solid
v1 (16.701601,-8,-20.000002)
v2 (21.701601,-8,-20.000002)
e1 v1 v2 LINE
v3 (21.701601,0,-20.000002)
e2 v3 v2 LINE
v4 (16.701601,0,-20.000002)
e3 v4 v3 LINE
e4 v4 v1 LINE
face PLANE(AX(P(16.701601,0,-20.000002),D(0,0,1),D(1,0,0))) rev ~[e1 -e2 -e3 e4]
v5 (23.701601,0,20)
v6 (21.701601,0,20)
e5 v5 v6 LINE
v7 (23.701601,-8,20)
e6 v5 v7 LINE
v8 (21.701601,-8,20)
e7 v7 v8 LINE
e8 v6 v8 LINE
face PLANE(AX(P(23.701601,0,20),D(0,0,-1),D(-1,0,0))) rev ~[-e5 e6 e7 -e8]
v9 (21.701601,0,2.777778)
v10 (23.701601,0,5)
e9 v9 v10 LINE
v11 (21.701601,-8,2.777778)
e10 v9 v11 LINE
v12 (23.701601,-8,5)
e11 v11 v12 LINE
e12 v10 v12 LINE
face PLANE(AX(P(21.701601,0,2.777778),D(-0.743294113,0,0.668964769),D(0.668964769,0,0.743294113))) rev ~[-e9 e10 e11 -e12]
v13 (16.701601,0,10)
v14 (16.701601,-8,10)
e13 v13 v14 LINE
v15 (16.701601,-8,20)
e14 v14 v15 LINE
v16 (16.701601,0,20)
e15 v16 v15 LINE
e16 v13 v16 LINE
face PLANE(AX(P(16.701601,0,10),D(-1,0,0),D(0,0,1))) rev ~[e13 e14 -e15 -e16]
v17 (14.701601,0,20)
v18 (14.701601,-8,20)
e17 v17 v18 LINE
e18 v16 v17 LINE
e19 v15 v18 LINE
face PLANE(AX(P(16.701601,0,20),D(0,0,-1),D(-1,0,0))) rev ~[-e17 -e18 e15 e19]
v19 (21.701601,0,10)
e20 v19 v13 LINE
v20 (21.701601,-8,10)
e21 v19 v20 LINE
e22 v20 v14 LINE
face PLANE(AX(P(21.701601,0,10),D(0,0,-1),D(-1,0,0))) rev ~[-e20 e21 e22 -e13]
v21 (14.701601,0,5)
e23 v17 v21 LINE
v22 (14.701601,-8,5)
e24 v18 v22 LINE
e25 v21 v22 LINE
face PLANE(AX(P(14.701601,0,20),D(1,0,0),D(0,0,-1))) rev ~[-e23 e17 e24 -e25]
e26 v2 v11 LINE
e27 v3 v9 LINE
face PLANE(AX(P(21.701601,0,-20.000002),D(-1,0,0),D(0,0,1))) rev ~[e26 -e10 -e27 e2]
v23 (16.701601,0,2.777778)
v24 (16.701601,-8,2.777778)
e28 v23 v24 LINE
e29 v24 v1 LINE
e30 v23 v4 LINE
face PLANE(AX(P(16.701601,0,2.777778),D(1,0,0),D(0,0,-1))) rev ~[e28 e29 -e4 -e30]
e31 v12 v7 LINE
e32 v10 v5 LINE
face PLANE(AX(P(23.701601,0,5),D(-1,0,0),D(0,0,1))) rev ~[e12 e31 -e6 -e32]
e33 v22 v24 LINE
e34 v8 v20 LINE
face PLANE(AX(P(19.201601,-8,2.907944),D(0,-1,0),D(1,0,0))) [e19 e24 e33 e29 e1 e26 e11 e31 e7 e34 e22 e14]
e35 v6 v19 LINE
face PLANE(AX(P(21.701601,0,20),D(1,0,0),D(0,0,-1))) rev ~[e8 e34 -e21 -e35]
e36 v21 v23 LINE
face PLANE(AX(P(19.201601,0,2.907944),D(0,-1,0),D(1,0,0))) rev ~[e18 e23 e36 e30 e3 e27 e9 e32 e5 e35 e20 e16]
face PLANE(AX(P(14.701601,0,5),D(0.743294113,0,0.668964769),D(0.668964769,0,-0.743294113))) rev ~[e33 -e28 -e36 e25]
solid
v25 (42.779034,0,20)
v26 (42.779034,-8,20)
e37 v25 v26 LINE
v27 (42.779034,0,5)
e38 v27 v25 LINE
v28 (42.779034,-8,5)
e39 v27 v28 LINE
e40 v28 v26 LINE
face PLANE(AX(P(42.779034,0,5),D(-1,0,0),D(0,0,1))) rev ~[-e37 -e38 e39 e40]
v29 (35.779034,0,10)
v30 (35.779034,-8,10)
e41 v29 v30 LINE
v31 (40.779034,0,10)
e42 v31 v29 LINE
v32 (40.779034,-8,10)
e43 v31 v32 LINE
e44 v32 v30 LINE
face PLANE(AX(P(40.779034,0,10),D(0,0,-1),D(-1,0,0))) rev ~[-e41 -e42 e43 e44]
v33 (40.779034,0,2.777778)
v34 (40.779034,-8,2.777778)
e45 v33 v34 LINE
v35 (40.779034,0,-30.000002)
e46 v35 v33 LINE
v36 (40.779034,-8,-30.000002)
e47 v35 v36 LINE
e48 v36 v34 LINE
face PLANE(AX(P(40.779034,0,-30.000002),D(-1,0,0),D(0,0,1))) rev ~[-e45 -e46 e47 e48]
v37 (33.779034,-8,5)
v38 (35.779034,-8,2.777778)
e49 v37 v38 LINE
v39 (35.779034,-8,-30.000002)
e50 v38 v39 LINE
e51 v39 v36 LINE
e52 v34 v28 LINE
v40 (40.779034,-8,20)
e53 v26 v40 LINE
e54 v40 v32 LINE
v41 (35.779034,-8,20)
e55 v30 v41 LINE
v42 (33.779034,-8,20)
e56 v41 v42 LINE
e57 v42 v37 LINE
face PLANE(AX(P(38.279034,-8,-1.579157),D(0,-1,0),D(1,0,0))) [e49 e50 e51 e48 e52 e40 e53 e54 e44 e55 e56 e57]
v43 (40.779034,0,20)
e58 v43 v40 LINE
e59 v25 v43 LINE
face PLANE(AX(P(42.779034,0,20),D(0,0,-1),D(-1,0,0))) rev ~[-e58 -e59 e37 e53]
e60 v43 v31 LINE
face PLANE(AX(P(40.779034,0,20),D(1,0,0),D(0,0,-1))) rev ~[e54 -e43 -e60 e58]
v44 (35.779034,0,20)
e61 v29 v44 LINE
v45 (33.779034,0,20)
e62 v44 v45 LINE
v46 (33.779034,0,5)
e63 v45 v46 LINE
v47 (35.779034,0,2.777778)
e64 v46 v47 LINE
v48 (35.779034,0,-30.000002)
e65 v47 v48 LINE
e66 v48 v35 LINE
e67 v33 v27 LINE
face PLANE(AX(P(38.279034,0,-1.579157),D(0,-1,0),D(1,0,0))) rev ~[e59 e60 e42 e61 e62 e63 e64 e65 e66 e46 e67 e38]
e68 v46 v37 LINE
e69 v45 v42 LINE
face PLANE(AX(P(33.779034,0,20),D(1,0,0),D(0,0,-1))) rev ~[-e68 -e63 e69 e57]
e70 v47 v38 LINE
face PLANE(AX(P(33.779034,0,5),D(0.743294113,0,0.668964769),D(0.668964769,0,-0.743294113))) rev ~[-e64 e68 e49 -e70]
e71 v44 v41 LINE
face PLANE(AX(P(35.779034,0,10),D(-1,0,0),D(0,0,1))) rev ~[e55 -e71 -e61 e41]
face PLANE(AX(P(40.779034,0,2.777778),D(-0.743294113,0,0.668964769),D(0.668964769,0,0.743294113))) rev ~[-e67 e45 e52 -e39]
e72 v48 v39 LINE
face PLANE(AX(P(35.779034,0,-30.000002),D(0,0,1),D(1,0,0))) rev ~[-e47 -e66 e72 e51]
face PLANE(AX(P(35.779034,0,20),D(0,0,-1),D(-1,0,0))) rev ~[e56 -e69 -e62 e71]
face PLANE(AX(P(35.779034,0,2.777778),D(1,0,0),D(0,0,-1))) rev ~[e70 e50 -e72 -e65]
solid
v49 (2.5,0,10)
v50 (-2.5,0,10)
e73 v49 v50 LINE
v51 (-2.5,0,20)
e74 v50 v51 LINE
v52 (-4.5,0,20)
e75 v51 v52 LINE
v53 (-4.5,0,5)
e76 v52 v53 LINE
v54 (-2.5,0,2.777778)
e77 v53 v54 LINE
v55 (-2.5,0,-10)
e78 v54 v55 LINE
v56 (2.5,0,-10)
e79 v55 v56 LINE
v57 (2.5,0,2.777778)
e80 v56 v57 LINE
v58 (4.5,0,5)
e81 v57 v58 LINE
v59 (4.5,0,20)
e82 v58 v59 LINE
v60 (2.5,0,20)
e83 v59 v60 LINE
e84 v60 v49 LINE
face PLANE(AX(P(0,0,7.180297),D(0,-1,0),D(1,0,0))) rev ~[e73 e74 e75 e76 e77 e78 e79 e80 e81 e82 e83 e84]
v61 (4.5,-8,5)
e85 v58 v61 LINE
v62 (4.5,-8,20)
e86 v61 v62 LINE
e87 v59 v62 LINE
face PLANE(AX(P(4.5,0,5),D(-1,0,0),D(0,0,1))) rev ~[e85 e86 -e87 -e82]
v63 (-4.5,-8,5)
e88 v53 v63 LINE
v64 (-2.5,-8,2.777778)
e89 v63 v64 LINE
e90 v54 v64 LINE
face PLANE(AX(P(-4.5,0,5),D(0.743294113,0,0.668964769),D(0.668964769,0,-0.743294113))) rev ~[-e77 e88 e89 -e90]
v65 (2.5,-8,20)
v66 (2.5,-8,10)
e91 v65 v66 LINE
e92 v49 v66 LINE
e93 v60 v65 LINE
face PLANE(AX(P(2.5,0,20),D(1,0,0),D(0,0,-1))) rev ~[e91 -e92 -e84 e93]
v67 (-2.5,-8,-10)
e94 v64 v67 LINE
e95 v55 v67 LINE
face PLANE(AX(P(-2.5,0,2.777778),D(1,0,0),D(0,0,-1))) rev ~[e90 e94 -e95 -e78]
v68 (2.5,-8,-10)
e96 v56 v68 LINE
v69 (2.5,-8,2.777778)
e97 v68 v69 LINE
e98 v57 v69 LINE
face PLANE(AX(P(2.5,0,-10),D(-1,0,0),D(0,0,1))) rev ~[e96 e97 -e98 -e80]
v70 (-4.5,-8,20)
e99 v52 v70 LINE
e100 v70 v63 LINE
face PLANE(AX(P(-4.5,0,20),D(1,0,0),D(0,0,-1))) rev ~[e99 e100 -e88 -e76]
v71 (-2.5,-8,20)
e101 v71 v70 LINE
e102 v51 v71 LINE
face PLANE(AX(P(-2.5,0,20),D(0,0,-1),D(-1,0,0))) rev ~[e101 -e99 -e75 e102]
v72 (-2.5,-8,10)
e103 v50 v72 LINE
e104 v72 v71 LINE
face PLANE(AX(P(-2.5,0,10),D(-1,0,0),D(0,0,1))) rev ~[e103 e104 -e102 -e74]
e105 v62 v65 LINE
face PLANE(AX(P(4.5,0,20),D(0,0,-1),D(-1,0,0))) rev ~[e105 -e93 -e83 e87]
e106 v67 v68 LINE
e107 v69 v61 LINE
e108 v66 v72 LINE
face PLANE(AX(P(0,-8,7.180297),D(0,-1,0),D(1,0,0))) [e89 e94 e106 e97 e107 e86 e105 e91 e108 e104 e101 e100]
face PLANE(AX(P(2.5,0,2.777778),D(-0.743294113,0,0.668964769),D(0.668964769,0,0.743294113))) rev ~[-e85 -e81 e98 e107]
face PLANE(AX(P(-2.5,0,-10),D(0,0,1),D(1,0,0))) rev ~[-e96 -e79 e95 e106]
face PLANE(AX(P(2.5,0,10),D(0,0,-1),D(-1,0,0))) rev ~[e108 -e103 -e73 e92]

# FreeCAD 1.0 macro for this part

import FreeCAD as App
import Part
import Sketcher
Q = App.Units.Quantity


def add_polygon(sketch, points):
    """Adds a closed chain of lines whose ends are joined by coincident constraints."""
    first, n = sketch.GeometryCount, len(points)
    for a, b in zip(points, points[1:] + points[:1]):
        sketch.addGeometry(Part.LineSegment(App.Vector(*a, 0), App.Vector(*b, 0)), False)
    for i in range(n):
        sketch.addConstraint(Sketcher.Constraint("Coincident", first + i, 2, first + (i + 1) % n, 1))

doc = App.newDocument("Part")
body = doc.addObject("PartDesign::Body", "Body")
body.AllowCompound = True

sketch1 = doc.addObject("Sketcher::SketchObject", "Sketch")
body.addObject(sketch1)
sketch1.AttachmentSupport = (doc.XZ_Plane, [""])
sketch1.MapMode = "FlatFace"
add_polygon(sketch1, [(-2.5, 2.8), (-2.5, -10), (2.5, -10), (2.5, 2.8), (4.5, 5), (4.5, 20), (2.5, 20), (2.5, 10), (-2.5, 10), (-2.5, 20), (-4.5, 20), (-4.5, 5)])
add_polygon(sketch1, [(21.7, 10), (16.7, 10), (16.7, 20), (14.7, 20), (14.7, 5), (16.7, 2.8), (16.7, -20), (21.7, -20), (21.7, 2.8), (23.7, 5), (23.7, 20), (21.7, 20)])
add_polygon(sketch1, [(40.8, 10), (35.8, 10), (35.8, 20), (33.8, 20), (33.8, 5), (35.8, 2.8), (35.8, -30), (40.8, -30), (40.8, 2.8), (42.8, 5), (42.8, 20), (40.8, 20)])
sketch1.addConstraint([
    Sketcher.Constraint("Vertical", 0),
    Sketcher.Constraint("Horizontal", 1),
    Sketcher.Constraint("Vertical", 2),
    Sketcher.Constraint("Vertical", 4),
    Sketcher.Constraint("Horizontal", 5),
    Sketcher.Constraint("Vertical", 6),
    Sketcher.Constraint("Horizontal", 7),
    Sketcher.Constraint("Vertical", 8),
    Sketcher.Constraint("Horizontal", 9),
    Sketcher.Constraint("Vertical", 10),
    Sketcher.Constraint("Horizontal", 12),
    Sketcher.Constraint("Vertical", 13),
    Sketcher.Constraint("Horizontal", 14),
    Sketcher.Constraint("Vertical", 15),
    Sketcher.Constraint("Vertical", 17),
    Sketcher.Constraint("Horizontal", 18),
    Sketcher.Constraint("Vertical", 19),
    Sketcher.Constraint("Vertical", 21),
    Sketcher.Constraint("Horizontal", 22),
    Sketcher.Constraint("Vertical", 23),
    Sketcher.Constraint("Horizontal", 24),
    Sketcher.Constraint("Vertical", 25),
    Sketcher.Constraint("Horizontal", 26),
    Sketcher.Constraint("Vertical", 27),
    Sketcher.Constraint("Vertical", 29),
    Sketcher.Constraint("Horizontal", 30),
    Sketcher.Constraint("Vertical", 31),
    Sketcher.Constraint("Vertical", 33),
    Sketcher.Constraint("Horizontal", 34),
    Sketcher.Constraint("Vertical", 35),
    Sketcher.Constraint("Symmetric", 0, 2, 6, 2, -1, 1),
    Sketcher.Constraint("Symmetric", 5, 2, 8, 2, -2),
    Sketcher.Constraint("Symmetric", 3, 2, 10, 2, -2),
    Sketcher.Constraint("Symmetric", 2, 2, 11, 2, -2),
    Sketcher.Constraint("Symmetric", 13, 2, 17, 2, -1),
    Sketcher.Constraint("Symmetric", 18, 2, 22, 2, -1),
    Sketcher.Constraint("Parallel", 11, 16),
    Sketcher.Constraint("Parallel", 3, 20),
    Sketcher.Constraint("Parallel", 16, 28),
    Sketcher.Constraint("Parallel", 20, 32),
    Sketcher.Constraint("Horizontal", 7, 2, 12, 2),
    Sketcher.Constraint("Horizontal", 9, 2, 13, 2),
    Sketcher.Constraint("Horizontal", 10, 2, 15, 2),
    Sketcher.Constraint("Horizontal", 11, 2, 16, 2),
    Sketcher.Constraint("Horizontal", 16, 2, 19, 2),
    Sketcher.Constraint("Horizontal", 15, 2, 20, 2),
    Sketcher.Constraint("Horizontal", 23, 2, 24, 2),
    Sketcher.Constraint("Horizontal", 22, 2, 25, 2),
    Sketcher.Constraint("Horizontal", 20, 2, 27, 2),
    Sketcher.Constraint("Horizontal", 19, 2, 28, 2),
    Sketcher.Constraint("Horizontal", 28, 2, 31, 2),
    Sketcher.Constraint("Horizontal", 27, 2, 32, 2),
    Sketcher.Constraint("Horizontal", 26, 2, 33, 2),
    Sketcher.Constraint("Vertical", 25, 2, 28, 2),
    Sketcher.Constraint("Vertical", 31, 2, 34, 2),
    Sketcher.Constraint("Equal", 7, 12),
    Sketcher.Constraint("Equal", 18, 24),
    Sketcher.Constraint("DistanceX", 1, 1, 1, 2, Q("5 mm")),
    Sketcher.Constraint("DistanceX", 5, 2, 5, 1, Q("2 mm")),
    Sketcher.Constraint("DistanceY", 4, 1, 4, 2, Q("15 mm")),
    Sketcher.Constraint("DistanceY", 6, 2, 6, 1, Q("10 mm")),
    Sketcher.Constraint("DistanceY", 0, 2, -1, 1, Q("10 mm")),
    Sketcher.Constraint("DistanceY", 29, 2, -1, 1, Q("30.000002 mm")),
    Sketcher.Constraint("DistanceY", 17, 2, 17, 1, Q("22.77778 mm")),
    Sketcher.Constraint("DistanceX", -1, 1, 12, 2, Q("16.701601 mm")),
    Sketcher.Constraint("DistanceX", -1, 1, 24, 2, Q("35.779034 mm")),
])
pad1 = doc.addObject("PartDesign::Pad", "Pad")
body.addObject(pad1)
pad1.Profile = sketch1
pad1.Length = 8

doc.recompute()
